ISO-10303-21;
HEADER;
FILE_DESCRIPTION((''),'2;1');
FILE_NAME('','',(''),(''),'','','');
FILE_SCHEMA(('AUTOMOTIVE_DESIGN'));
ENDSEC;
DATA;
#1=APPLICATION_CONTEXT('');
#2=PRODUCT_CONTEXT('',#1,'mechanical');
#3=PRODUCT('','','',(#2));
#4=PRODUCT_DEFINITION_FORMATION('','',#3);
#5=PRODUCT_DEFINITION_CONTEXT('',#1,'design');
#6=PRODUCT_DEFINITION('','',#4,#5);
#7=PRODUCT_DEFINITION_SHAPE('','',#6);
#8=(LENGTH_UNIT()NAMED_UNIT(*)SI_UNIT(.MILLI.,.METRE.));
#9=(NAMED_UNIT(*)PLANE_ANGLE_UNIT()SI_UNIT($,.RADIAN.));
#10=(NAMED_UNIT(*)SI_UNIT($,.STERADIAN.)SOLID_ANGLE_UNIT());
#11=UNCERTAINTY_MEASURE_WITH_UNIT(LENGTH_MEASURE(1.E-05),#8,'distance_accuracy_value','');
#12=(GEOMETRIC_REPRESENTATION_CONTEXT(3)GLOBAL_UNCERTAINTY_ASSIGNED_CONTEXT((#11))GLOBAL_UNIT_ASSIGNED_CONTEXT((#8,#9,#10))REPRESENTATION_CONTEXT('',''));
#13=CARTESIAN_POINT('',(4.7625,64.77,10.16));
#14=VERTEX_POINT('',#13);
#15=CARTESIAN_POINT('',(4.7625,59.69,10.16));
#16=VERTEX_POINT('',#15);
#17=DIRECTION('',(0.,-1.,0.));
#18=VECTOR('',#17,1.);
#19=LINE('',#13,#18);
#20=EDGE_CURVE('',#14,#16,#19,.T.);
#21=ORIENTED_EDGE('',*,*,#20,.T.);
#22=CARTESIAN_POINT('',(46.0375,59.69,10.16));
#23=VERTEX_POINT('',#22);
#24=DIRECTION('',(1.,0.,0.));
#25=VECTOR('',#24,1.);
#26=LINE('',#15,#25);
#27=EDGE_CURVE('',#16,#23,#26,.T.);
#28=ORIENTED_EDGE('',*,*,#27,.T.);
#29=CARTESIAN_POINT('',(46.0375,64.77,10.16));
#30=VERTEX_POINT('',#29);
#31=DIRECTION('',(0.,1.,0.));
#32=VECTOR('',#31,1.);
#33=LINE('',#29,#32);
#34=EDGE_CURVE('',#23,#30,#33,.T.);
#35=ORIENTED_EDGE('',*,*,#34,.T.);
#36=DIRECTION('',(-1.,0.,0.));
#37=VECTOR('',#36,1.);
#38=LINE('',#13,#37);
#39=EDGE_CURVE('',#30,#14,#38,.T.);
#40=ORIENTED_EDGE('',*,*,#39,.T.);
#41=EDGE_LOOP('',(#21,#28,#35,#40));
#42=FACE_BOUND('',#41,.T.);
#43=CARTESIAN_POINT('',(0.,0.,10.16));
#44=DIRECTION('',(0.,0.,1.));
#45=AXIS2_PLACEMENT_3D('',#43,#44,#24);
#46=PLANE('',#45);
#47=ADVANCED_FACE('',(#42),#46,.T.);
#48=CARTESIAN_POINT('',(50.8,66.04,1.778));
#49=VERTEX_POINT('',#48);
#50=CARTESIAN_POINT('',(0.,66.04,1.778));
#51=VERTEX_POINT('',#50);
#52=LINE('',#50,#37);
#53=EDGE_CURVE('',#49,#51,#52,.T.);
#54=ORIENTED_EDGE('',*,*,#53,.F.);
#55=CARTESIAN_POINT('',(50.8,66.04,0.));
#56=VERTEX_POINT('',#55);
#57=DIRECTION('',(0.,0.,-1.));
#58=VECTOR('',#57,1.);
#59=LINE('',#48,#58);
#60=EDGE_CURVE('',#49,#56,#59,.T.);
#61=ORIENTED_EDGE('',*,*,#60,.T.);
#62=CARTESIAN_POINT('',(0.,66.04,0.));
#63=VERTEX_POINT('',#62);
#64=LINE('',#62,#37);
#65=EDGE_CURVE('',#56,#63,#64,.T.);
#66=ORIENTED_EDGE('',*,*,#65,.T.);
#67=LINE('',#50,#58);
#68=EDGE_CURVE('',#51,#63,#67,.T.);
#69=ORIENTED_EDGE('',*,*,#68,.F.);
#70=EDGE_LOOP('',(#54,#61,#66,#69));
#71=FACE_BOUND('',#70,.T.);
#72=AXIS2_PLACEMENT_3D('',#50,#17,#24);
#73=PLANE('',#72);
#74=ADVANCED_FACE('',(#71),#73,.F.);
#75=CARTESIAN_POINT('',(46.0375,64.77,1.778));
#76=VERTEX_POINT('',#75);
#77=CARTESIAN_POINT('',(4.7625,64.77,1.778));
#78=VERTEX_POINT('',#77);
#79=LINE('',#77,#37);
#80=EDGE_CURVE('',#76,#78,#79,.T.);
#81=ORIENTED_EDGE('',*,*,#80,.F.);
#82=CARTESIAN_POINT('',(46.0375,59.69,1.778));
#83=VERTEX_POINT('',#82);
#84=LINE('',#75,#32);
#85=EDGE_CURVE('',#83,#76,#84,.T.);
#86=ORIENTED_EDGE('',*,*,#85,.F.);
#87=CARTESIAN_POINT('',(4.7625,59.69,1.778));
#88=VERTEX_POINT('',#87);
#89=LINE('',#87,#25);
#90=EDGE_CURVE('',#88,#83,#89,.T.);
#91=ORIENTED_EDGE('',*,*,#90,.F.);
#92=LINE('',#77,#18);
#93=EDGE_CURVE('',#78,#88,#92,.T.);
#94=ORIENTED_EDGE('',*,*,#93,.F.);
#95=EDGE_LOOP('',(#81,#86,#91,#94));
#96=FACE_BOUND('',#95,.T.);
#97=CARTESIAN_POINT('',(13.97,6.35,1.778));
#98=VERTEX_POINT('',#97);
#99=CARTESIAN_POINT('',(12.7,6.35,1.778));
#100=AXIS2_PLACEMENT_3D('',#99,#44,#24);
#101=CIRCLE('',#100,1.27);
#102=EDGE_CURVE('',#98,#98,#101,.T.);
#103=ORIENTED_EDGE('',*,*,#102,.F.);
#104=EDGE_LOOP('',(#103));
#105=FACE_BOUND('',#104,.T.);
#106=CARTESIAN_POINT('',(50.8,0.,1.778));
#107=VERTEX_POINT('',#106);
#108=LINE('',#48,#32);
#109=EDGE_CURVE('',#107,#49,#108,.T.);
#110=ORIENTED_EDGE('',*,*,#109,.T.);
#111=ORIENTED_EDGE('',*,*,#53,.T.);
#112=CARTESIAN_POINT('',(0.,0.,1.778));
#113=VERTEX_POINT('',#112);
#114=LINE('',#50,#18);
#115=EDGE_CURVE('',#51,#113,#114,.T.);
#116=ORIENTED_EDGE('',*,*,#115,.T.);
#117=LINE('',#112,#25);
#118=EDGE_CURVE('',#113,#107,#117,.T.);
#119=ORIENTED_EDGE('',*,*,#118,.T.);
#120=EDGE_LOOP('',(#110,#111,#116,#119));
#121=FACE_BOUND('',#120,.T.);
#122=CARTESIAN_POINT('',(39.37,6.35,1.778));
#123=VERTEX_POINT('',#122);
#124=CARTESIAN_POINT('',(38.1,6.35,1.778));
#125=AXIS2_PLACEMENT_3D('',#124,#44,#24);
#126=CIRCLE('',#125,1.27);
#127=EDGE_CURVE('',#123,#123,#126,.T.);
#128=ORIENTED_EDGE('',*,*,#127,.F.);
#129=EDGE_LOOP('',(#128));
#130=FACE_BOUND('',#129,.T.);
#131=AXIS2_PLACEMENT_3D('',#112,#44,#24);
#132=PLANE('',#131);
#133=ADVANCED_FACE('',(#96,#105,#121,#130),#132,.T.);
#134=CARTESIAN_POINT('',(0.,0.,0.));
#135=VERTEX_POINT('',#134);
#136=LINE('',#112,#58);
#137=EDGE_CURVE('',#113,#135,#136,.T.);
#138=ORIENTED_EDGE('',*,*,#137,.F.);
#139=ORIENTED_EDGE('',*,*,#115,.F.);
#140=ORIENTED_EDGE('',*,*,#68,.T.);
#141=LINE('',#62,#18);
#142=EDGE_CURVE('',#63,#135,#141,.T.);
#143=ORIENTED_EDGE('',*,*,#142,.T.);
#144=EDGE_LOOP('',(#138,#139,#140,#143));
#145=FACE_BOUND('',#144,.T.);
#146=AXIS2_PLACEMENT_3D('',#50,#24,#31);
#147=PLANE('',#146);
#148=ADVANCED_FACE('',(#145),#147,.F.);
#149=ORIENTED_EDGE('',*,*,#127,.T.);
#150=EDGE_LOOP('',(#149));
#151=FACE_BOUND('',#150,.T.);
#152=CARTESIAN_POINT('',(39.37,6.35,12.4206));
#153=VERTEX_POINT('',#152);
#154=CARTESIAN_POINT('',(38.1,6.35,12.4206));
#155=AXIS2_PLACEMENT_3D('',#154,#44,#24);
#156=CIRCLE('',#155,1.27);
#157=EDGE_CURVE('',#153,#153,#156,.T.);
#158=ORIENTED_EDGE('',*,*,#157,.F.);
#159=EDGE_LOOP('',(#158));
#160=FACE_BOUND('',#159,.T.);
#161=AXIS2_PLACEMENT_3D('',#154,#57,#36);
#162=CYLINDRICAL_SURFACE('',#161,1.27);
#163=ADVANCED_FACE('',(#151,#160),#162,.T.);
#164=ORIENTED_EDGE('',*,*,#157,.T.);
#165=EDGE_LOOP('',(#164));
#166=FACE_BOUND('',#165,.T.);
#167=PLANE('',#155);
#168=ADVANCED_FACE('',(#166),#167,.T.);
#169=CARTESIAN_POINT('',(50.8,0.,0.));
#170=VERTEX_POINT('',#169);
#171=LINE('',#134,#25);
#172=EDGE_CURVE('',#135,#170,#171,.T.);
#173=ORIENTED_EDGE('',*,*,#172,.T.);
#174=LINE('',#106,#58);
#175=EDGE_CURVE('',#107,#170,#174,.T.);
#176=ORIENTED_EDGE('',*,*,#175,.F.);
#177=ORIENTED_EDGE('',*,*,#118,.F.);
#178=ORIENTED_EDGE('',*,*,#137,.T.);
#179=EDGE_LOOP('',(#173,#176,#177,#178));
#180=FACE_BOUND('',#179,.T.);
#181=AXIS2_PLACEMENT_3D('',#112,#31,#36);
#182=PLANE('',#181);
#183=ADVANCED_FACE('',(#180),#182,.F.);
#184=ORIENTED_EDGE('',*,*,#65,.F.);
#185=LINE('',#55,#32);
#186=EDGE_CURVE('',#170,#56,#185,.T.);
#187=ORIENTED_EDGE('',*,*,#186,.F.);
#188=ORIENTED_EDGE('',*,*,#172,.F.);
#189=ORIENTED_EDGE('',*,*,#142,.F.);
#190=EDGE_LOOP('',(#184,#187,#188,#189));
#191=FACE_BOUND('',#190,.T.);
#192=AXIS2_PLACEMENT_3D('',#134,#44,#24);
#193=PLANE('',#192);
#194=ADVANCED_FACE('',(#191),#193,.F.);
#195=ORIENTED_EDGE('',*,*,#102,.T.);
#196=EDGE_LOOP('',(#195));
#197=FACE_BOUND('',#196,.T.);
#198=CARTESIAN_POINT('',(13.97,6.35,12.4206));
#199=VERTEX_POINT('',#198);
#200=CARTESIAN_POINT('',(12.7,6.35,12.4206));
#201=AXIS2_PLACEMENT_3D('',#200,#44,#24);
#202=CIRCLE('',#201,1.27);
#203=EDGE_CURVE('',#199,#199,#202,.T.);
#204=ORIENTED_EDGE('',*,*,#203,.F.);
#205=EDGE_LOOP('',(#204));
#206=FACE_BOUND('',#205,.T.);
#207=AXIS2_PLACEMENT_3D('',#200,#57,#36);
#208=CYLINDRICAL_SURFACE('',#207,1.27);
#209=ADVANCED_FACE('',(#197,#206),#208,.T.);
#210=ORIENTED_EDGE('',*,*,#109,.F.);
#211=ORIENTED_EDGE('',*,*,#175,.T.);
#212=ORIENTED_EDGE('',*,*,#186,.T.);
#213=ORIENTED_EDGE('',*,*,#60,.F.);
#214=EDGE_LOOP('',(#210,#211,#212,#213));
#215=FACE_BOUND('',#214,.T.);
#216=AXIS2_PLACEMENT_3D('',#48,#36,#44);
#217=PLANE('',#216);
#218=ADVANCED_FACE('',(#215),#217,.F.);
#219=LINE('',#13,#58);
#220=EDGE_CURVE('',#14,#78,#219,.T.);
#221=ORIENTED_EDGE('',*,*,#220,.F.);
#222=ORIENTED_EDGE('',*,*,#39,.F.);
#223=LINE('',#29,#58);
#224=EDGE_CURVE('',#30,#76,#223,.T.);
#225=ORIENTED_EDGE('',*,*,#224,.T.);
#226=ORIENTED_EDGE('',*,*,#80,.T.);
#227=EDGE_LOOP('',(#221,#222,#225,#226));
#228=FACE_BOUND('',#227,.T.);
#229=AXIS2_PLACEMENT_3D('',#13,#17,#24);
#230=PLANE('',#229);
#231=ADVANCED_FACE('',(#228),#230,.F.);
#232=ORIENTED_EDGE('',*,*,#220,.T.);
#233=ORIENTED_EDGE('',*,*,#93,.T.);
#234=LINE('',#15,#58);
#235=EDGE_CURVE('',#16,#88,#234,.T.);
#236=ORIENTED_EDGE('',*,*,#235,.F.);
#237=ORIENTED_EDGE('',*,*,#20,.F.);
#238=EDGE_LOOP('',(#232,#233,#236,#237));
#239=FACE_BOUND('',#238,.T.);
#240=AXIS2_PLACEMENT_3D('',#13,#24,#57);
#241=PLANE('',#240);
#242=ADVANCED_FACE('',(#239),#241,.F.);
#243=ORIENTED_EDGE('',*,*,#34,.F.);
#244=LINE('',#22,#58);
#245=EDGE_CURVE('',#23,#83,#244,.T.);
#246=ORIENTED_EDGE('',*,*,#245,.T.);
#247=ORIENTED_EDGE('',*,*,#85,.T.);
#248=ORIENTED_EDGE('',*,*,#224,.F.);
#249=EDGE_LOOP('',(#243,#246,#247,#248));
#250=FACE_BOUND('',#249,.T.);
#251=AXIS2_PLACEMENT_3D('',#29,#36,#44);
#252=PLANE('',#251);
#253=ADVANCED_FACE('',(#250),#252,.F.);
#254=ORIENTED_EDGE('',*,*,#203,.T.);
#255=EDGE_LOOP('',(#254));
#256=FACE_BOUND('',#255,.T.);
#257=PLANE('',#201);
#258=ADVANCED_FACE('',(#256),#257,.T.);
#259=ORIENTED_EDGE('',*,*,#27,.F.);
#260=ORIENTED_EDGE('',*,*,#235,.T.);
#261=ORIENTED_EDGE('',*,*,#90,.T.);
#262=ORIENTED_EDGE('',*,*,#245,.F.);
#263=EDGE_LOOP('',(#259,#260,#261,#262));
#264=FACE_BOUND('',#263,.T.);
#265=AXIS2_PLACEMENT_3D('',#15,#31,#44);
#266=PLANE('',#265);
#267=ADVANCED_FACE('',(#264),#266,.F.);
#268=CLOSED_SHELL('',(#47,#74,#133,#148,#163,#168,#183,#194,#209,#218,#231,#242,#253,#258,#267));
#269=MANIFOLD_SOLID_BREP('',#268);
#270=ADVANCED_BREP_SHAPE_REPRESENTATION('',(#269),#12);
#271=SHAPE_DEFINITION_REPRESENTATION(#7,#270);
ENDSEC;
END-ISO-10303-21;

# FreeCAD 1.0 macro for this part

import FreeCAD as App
import Part
import Sketcher

V = App.Vector
Q = App.Units.Quantity


def add_polygon(sketch, points):
    """Adds a closed chain of lines whose ends are joined by coincident constraints."""
    first, n = sketch.GeometryCount, len(points)
    for a, b in zip(points, points[1:] + points[:1]):
        sketch.addGeometry(Part.LineSegment(App.Vector(*a, 0), App.Vector(*b, 0)), False)
    for i in range(n):
        sketch.addConstraint(Sketcher.Constraint("Coincident", first + i, 2, first + (i + 1) % n, 1))

doc = App.newDocument("Part")
body = doc.addObject("PartDesign::Body", "Body")

# Sketch on XY plane
sketch1 = body.newObject("Sketcher::SketchObject", "Sketch")
sketch1.AttachmentSupport = (doc.getObject("XY_Plane"), [""])
sketch1.MapMode = "FlatFace"
add_polygon(sketch1, [(0, 66), (0, 0), (51, 0), (51, 66)])  # lines 0-3
sketch1.addConstraint([
    Sketcher.Constraint("Vertical", 0),
    Sketcher.Constraint("Horizontal", 1),
    Sketcher.Constraint("Vertical", 2),
    Sketcher.Constraint("Horizontal", 3),
    Sketcher.Constraint("Coincident", 0, 2, -1, 1),
    Sketcher.Constraint("DistanceX", 1, 1, 1, 2, Q("2 in")),
    Sketcher.Constraint("DistanceY", 0, 2, 0, 1, Q("2.6 in")),
])
pad1 = body.newObject("PartDesign::Pad", "Pad")
pad1.Profile = sketch1
pad1.Length = Q("0.07 in")

# Sketch on XY plane
sketch2 = body.newObject("Sketcher::SketchObject", "Sketch001")
sketch2.AttachmentSupport = (doc.getObject("XY_Plane"), [""])
sketch2.MapMode = "FlatFace"
sketch2.AttachmentOffset = App.Placement(V(0, 0, 0.07 * 25.4), App.Rotation())
add_polygon(sketch2, [(5, 65), (5, 60), (46, 60), (46, 65)])  # lines 0-3
sketch2.addConstraint([
    Sketcher.Constraint("Vertical", 0),
    Sketcher.Constraint("Horizontal", 1),
    Sketcher.Constraint("Vertical", 2),
    Sketcher.Constraint("Horizontal", 3),
    Sketcher.Constraint("DistanceY", 0, 2, 0, 1, Q("0.2 in")),
    Sketcher.Constraint("DistanceX", 1, 1, 1, 2, Q("1.625 in")),
    Sketcher.Constraint("DistanceY", -1, 1, 0, 2, Q("2.35 in")),
    Sketcher.Constraint("DistanceX", -1, 1, 0, 2, Q("0.1875 in")),
])
pad2 = body.newObject("PartDesign::Pad", "Pad001")
pad2.Profile = sketch2
pad2.Length = Q("0.33 in")

# Sketch on XY plane
sketch3 = body.newObject("Sketcher::SketchObject", "Sketch002")
sketch3.AttachmentSupport = (doc.getObject("XY_Plane"), [""])
sketch3.MapMode = "FlatFace"
sketch3.AttachmentOffset = App.Placement(V(0, 0, 0.07 * 25.4), App.Rotation())
sketch3.addGeometry([
    Part.Circle(V(12.7, 6.3, 0), V(0, 0, 1), 1.3),
    Part.Circle(V(38.1, 6.3, 0), V(0, 0, 1), 1.3),
], False)
sketch3.addConstraint([
    Sketcher.Constraint("Equal", 0, 1),
    Sketcher.Constraint("Horizontal", 0, 3, 1, 3),
    Sketcher.Constraint("Diameter", 0, Q("0.1 in")),
    Sketcher.Constraint("DistanceX", 0, 3, 1, 3, Q("1 in")),
    Sketcher.Constraint("DistanceX", -1, 1, 0, 3, Q("0.5 in")),
    Sketcher.Constraint("DistanceY", -1, 1, 0, 3, Q("0.25 in")),
])
pad3 = body.newObject("PartDesign::Pad", "Pad002")
pad3.Profile = sketch3
pad3.Length = Q("0.419 in")

doc.recompute()
